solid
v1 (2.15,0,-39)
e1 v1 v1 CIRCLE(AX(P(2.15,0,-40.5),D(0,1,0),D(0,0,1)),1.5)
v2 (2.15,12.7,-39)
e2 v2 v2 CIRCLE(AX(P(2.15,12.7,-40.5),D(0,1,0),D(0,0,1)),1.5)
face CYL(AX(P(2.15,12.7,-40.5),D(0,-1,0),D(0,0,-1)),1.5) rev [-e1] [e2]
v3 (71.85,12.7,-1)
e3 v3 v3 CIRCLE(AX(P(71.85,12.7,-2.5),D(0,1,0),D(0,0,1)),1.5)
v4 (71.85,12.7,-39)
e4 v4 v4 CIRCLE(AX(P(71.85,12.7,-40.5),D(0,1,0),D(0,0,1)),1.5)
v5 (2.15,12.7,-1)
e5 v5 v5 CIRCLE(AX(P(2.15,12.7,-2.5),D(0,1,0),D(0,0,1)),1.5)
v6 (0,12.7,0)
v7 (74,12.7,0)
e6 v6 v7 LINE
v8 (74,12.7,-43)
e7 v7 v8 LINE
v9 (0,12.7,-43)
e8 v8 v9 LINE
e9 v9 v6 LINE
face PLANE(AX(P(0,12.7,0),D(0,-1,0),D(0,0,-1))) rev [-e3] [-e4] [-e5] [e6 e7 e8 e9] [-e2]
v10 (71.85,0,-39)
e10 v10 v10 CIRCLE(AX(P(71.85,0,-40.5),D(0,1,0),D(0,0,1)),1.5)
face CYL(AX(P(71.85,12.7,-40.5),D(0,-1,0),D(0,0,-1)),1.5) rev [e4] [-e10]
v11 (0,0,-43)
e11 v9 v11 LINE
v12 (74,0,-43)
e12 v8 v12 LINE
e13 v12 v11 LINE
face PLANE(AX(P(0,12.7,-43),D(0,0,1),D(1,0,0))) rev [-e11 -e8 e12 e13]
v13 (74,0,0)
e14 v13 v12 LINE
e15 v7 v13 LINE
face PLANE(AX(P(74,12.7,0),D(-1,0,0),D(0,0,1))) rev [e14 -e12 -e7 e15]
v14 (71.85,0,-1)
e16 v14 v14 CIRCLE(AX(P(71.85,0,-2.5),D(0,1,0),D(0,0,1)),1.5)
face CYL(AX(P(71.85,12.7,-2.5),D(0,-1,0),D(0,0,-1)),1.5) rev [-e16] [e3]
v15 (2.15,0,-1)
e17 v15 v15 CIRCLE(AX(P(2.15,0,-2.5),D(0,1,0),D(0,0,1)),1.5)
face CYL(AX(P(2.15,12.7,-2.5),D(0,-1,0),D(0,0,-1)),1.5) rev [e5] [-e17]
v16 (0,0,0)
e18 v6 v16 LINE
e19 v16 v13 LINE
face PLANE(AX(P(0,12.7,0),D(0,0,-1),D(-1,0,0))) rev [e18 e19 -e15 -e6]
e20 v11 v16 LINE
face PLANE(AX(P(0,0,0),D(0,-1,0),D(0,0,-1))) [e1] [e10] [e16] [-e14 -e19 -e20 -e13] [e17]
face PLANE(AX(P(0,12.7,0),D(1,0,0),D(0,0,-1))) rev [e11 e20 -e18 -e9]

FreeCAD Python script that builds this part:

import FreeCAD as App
import Part
import Sketcher
from FreeCAD import Vector


def add_polygon(sketch, points):
    """Adds a closed chain of lines whose ends are joined by coincident constraints."""
    first, n = sketch.GeometryCount, len(points)
    for a, b in zip(points, points[1:] + points[:1]):
        sketch.addGeometry(Part.LineSegment(App.Vector(*a, 0), App.Vector(*b, 0)), False)
    for i in range(n):
        sketch.addConstraint(Sketcher.Constraint("Coincident", first + i, 2, first + (i + 1) % n, 1))

doc = App.newDocument("Part")
params = doc.addObject("Spreadsheet::Sheet", "Params")
for row, (alias, value) in enumerate([
    ("sketch1_diameter", "3 mm"),
    ("sketch1_width", "74 mm"),
    ("sketch1_height", "43 mm"),
    ("pad1_length", "12.7 mm"),
], start=1):
    params.set(f"A{row}", alias)
    params.set(f"B{row}", "=" + value)
    params.setAlias(f"B{row}", alias)

body = doc.addObject("PartDesign::Body", "Body")

# Sketch on XZ plane
sketch1 = body.newObject("Sketcher::SketchObject", "Sketch")
sketch1.AttachmentSupport = (doc.getObject("XZ_Plane"), [""])
sketch1.MapMode = "FlatFace"
add_polygon(sketch1, [(0, -43), (0, 0), (74, 0), (74, -43)])  # lines 0-3
sketch1.addGeometry(Part.Circle(Vector(2.1, -2.5, 0), Vector(0, 0, 1), 1.5), False)  # 4
sketch1.addGeometry(Part.Circle(Vector(71.8, -2.5, 0), Vector(0, 0, 1), 1.5), False)  # 5
sketch1.addGeometry(Part.Circle(Vector(2.1, -40.5, 0), Vector(0, 0, 1), 1.5), False)  # 6
sketch1.addGeometry(Part.Circle(Vector(71.8, -40.5, 0), Vector(0, 0, 1), 1.5), False)  # 7
sketch1.addConstraint(Sketcher.Constraint("Vertical", 0))
sketch1.addConstraint(Sketcher.Constraint("Horizontal", 1))
sketch1.addConstraint(Sketcher.Constraint("Vertical", 2))
sketch1.addConstraint(Sketcher.Constraint("Horizontal", 3))
sketch1.addConstraint(Sketcher.Constraint("Coincident", 0, 2, -1, 1))
sketch1.addConstraint(Sketcher.Constraint("Equal", 4, 5))
sketch1.addConstraint(Sketcher.Constraint("Equal", 5, 6))
sketch1.addConstraint(Sketcher.Constraint("Equal", 6, 7))
sketch1.addConstraint(Sketcher.Constraint("Horizontal", 4, 3, 5, 3))
sketch1.addConstraint(Sketcher.Constraint("Horizontal", 6, 3, 7, 3))
sketch1.addConstraint(Sketcher.Constraint("Vertical", 4, 3, 6, 3))
sketch1.addConstraint(Sketcher.Constraint("Vertical", 5, 3, 7, 3))
sketch1.addConstraint(Sketcher.Constraint("Diameter", 4, 3.0))
sketch1.addConstraint(Sketcher.Constraint("DistanceX", 1, 1, 1, 2, 74.0))
sketch1.addConstraint(Sketcher.Constraint("DistanceY", 0, 1, 0, 2, 43.0))
sketch1.addConstraint(Sketcher.Constraint("DistanceY", 6, 3, 4, 3, 38.0))
sketch1.addConstraint(Sketcher.Constraint("DistanceY", 4, 3, -1, 1, 2.5))
sketch1.addConstraint(Sketcher.Constraint("DistanceX", 4, 3, 5, 3, 69.7))
sketch1.addConstraint(Sketcher.Constraint("DistanceX", -1, 1, 4, 3, 2.15))
sketch1.setExpression("Constraints[16]", "Params.sketch1_diameter")
sketch1.setExpression("Constraints[17]", "Params.sketch1_width")
sketch1.setExpression("Constraints[18]", "Params.sketch1_height")
pad1 = body.newObject("PartDesign::Pad", "Pad")
pad1.Profile = sketch1
pad1.setExpression("Length", "Params.pad1_length")
pad1.Reversed = True

doc.recompute()
